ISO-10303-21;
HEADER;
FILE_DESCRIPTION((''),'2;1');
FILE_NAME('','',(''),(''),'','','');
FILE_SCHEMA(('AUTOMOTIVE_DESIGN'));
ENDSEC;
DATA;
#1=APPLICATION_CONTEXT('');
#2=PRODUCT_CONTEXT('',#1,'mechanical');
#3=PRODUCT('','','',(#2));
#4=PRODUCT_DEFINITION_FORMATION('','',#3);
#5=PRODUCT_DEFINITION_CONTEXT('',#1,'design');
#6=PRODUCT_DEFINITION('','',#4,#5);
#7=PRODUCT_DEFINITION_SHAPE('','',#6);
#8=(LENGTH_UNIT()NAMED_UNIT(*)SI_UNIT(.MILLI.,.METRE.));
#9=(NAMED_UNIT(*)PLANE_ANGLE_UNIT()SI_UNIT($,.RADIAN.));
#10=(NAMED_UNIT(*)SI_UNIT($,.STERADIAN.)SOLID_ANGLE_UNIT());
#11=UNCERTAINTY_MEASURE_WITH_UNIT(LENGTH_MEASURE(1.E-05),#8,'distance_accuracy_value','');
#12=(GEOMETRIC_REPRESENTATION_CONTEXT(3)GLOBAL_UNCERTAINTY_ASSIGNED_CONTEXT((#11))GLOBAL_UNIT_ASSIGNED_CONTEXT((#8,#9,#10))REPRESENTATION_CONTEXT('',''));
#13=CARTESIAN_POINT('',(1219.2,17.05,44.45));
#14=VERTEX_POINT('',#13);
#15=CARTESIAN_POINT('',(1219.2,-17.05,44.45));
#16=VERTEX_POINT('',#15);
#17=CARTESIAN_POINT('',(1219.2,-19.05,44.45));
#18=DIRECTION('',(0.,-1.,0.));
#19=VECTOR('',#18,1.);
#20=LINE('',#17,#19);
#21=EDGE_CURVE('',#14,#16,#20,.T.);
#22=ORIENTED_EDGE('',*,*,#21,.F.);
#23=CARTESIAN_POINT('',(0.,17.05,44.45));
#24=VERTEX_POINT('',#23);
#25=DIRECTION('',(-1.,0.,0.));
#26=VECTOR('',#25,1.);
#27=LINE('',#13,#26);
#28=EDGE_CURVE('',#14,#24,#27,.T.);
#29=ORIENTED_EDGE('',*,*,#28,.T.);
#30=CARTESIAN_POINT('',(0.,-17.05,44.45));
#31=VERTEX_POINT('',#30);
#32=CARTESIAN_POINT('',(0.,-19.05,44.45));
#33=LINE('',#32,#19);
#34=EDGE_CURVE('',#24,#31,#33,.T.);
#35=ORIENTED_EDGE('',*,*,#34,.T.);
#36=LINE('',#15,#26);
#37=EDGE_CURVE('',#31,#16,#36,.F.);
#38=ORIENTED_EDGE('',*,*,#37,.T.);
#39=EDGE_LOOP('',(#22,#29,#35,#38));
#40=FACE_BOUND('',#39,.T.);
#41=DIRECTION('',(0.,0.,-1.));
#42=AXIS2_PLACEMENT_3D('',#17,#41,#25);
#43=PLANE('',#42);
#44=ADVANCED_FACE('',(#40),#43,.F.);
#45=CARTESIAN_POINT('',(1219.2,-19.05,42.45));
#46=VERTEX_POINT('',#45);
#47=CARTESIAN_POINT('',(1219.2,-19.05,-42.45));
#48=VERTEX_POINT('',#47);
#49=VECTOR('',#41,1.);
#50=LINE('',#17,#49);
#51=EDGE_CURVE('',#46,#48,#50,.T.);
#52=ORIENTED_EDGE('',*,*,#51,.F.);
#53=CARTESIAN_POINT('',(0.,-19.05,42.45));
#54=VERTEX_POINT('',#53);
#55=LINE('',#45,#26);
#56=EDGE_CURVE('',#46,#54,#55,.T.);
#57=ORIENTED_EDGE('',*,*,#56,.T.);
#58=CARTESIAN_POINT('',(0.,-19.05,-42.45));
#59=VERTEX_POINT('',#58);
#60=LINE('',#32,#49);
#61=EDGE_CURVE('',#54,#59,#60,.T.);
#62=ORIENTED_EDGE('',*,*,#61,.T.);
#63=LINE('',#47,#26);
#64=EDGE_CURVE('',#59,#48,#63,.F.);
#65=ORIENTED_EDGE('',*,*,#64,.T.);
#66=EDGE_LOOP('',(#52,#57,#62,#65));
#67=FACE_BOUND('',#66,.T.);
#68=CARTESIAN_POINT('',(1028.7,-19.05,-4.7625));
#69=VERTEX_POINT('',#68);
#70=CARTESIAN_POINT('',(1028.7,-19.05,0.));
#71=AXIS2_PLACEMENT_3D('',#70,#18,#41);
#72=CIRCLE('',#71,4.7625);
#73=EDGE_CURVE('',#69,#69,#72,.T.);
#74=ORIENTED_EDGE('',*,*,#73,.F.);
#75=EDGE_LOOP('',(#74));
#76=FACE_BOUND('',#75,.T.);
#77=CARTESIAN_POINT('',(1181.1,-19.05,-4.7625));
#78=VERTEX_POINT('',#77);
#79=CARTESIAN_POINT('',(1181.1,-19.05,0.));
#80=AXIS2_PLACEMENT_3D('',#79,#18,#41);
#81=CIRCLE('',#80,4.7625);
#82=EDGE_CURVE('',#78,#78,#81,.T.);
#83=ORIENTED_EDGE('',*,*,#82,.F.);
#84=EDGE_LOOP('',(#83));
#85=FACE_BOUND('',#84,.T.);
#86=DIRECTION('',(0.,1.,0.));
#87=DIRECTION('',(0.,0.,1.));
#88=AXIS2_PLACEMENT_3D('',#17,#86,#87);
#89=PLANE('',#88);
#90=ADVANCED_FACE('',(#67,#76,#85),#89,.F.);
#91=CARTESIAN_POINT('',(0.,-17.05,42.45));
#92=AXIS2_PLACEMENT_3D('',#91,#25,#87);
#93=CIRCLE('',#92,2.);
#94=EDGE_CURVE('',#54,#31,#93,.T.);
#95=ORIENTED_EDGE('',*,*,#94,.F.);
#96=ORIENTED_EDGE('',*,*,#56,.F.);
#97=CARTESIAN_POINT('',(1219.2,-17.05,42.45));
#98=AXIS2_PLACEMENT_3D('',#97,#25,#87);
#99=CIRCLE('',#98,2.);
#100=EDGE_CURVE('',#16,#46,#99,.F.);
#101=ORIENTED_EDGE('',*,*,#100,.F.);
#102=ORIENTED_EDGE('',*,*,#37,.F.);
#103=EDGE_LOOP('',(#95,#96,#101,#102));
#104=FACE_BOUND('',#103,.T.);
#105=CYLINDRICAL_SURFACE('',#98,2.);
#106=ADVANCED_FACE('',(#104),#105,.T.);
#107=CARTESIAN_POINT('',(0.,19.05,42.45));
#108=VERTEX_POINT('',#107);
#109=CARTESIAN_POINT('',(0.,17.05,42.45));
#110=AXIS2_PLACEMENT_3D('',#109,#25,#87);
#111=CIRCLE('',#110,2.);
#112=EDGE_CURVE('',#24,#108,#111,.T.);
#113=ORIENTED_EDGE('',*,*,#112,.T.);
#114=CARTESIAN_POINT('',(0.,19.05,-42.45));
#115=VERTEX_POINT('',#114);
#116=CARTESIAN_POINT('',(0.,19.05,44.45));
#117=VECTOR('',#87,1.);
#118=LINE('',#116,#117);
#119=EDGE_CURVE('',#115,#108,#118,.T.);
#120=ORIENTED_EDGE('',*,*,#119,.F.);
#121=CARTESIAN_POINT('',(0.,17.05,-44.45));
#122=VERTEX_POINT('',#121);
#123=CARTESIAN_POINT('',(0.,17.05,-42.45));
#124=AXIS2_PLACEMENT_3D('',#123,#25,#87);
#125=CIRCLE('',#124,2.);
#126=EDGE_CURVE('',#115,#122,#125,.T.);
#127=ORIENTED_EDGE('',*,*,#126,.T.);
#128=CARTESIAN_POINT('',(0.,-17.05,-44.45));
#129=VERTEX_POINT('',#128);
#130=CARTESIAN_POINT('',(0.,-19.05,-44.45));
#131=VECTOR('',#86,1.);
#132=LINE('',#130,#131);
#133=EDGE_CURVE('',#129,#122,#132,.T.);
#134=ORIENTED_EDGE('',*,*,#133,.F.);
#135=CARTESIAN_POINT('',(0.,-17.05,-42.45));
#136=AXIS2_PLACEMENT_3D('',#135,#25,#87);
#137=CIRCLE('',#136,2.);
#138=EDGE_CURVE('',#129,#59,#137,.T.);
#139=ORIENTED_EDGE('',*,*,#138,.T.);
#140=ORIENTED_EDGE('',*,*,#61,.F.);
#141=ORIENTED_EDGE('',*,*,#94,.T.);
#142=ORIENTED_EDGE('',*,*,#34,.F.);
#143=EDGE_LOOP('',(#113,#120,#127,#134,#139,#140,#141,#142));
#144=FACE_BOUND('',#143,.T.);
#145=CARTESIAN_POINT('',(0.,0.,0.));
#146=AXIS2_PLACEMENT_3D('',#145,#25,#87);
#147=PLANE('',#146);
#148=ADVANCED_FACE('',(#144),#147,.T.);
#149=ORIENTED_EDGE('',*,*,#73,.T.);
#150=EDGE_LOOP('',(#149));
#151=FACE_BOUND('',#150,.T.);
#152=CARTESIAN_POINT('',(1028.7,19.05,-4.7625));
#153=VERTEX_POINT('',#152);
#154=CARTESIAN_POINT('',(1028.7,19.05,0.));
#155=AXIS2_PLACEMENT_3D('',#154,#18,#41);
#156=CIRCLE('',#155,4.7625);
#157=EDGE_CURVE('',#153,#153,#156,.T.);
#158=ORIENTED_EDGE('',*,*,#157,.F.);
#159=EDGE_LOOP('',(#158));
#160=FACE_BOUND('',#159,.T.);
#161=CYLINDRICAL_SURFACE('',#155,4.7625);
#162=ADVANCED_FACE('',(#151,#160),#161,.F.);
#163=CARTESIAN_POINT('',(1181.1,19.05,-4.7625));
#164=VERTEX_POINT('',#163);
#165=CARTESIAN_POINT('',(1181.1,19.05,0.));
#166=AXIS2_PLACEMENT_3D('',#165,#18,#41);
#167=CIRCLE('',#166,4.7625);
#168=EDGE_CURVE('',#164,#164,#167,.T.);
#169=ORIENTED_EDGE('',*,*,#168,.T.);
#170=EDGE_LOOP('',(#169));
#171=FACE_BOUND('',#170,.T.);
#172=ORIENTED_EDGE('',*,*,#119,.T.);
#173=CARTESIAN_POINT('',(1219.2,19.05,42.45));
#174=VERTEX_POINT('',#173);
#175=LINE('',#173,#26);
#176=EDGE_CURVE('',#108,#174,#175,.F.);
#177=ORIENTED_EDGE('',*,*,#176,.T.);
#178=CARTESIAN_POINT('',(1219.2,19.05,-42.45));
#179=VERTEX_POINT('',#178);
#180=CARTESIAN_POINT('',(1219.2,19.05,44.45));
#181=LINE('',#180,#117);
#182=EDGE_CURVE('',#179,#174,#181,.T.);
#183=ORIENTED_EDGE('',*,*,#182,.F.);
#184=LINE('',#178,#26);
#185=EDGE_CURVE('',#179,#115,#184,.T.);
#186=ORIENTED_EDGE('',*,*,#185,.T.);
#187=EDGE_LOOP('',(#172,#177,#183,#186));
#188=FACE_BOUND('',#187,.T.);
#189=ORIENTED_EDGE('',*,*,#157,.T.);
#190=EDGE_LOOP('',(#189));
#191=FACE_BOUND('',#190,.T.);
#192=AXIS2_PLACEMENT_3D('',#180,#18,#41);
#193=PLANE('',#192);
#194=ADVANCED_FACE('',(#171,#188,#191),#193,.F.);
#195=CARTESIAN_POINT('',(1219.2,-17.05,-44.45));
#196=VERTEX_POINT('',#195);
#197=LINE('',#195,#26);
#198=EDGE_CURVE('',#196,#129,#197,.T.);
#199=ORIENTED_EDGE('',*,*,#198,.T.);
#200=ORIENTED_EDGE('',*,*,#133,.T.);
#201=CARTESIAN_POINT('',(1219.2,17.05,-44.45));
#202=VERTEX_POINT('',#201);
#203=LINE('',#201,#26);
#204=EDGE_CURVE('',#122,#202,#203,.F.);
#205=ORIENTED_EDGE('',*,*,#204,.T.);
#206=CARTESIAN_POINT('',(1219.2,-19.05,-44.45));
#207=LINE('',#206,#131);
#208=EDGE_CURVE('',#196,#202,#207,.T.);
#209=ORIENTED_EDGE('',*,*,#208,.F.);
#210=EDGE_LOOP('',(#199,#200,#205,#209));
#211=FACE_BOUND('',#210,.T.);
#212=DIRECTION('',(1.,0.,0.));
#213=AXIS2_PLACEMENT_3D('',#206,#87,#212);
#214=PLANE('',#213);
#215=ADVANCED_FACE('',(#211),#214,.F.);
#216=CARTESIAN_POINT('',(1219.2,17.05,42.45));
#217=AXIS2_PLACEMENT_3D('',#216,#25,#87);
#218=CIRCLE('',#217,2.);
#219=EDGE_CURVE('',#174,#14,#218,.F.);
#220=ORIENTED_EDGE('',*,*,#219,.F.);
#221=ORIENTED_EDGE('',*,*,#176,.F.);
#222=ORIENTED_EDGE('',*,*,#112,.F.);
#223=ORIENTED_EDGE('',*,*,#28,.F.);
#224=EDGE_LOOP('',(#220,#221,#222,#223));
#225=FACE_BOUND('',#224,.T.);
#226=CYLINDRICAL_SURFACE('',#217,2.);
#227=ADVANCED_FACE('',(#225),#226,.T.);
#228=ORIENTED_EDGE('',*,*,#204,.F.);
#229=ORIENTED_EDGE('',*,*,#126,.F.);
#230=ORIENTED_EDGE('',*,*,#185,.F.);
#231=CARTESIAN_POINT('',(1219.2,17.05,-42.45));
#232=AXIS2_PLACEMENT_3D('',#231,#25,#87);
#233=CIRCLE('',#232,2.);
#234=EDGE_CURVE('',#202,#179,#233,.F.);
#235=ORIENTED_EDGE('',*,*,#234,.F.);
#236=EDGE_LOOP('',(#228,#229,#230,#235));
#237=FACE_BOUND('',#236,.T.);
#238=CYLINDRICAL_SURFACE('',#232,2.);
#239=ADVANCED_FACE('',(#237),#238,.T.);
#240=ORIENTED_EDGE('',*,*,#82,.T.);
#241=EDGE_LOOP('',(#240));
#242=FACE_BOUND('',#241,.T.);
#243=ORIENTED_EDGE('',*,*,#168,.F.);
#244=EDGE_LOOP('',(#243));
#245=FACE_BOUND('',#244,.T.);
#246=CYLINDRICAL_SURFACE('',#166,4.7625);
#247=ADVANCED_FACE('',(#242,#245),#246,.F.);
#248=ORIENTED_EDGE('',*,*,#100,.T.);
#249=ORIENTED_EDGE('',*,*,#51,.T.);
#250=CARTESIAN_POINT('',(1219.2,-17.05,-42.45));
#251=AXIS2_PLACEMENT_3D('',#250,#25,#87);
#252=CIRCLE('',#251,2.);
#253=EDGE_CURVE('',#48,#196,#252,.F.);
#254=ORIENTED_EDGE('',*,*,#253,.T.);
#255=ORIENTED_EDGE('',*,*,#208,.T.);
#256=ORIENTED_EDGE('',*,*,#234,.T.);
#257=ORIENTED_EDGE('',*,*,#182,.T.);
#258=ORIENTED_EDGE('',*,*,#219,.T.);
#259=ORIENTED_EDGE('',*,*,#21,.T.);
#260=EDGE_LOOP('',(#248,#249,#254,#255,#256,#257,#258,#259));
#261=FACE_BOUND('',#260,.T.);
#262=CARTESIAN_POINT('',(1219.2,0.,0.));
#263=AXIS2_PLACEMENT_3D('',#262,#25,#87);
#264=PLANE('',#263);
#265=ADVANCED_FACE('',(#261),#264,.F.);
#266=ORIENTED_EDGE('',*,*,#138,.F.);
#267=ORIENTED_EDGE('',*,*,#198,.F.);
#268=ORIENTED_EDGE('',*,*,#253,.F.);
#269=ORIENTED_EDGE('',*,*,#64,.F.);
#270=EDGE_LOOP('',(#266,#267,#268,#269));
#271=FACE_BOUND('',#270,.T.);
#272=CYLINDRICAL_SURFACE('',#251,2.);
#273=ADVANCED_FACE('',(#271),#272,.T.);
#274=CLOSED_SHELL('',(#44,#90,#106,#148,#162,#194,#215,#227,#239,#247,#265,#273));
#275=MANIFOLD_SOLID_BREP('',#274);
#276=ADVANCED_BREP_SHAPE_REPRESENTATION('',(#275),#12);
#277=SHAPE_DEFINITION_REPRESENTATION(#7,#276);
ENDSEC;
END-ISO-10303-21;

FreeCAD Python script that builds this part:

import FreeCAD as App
import Part
import Sketcher

V = App.Vector
Q = App.Units.Quantity


def edges_at(feature, points):
    """Names of the edges that pass closest to the given points."""
    edges = feature.Shape.Edges
    near = lambda p: min(range(len(edges)), key=lambda i: edges[i].distToShape(Part.Vertex(*p))[0])
    return sorted({f"Edge{near(p) + 1}" for p in points})


def add_polygon(sketch, points):
    """Adds a closed chain of lines whose ends are joined by coincident constraints."""
    first, n = sketch.GeometryCount, len(points)
    for a, b in zip(points, points[1:] + points[:1]):
        sketch.addGeometry(Part.LineSegment(App.Vector(*a, 0), App.Vector(*b, 0)), False)
    for i in range(n):
        sketch.addConstraint(Sketcher.Constraint("Coincident", first + i, 2, first + (i + 1) % n, 1))

doc = App.newDocument("Part")
body = doc.addObject("PartDesign::Body", "Body")

sketch1 = body.newObject("Sketcher::SketchObject", "Sketch")
sketch1.AttachmentSupport = (doc.getObject("YZ_Plane"), [""])
sketch1.MapMode = "FlatFace"
add_polygon(sketch1, [(19.05, 44.45), (-19.05, 44.45), (-19.05, -44.45), (19.05, -44.45)])
sketch1.addConstraint([
    Sketcher.Constraint("Horizontal", 0),
    Sketcher.Constraint("Vertical", 1),
    Sketcher.Constraint("Horizontal", 2),
    Sketcher.Constraint("Vertical", 3),
    Sketcher.Constraint("Symmetric", 0, 2, 2, 2, -1, 1),
    Sketcher.Constraint("DistanceX", 0, 2, 0, 1, Q("1.5 in")),
    Sketcher.Constraint("DistanceY", 1, 2, 1, 1, Q("3.5 in")),
])
pad1 = body.newObject("PartDesign::Pad", "Pad")
pad1.Profile = sketch1
pad1.Length = Q("48 in")
doc.recompute()

fillet = body.newObject("PartDesign::Fillet", "Fillet")
fillet.Base = (pad1, edges_at(pad1, [
    (609.6, -19.05, -44.45),
    (609.6, -19.05, 44.45),
    (609.6, 19.05, 44.45),
    (609.6, 19.05, -44.45),
]))
fillet.Radius = 2

sketch2 = body.newObject("Sketcher::SketchObject", "Sketch001")
sketch2.AttachmentSupport = (doc.getObject("XZ_Plane"), [""])
sketch2.MapMode = "FlatFace"
sketch2.AttachmentOffset = App.Placement(V(0, 0, 0.75 * 25.4), App.Rotation())
sketch2.addGeometry([
    Part.Circle(V(1028.7, 0, 0), V(0, 0, 1), 4.7625),
    Part.Circle(V(1181.1, 0, 0), V(0, 0, 1), 4.7625),
], False)
sketch2.addConstraint([
    Sketcher.Constraint("Equal", 0, 1),
    Sketcher.Constraint("PointOnObject", 0, 3, -1),
    Sketcher.Constraint("PointOnObject", 1, 3, -1),
    Sketcher.Constraint("Diameter", 0, Q("0.375 in")),
    Sketcher.Constraint("DistanceX", 0, 3, 1, 3, Q("6 in")),
    Sketcher.Constraint("DistanceX", -1, 1, 0, 3, Q("40.5 in")),
])
pocket1 = body.newObject("PartDesign::Pocket", "Pocket")
pocket1.Profile = sketch2
pocket1.Type = "ThroughAll"

doc.recompute()
